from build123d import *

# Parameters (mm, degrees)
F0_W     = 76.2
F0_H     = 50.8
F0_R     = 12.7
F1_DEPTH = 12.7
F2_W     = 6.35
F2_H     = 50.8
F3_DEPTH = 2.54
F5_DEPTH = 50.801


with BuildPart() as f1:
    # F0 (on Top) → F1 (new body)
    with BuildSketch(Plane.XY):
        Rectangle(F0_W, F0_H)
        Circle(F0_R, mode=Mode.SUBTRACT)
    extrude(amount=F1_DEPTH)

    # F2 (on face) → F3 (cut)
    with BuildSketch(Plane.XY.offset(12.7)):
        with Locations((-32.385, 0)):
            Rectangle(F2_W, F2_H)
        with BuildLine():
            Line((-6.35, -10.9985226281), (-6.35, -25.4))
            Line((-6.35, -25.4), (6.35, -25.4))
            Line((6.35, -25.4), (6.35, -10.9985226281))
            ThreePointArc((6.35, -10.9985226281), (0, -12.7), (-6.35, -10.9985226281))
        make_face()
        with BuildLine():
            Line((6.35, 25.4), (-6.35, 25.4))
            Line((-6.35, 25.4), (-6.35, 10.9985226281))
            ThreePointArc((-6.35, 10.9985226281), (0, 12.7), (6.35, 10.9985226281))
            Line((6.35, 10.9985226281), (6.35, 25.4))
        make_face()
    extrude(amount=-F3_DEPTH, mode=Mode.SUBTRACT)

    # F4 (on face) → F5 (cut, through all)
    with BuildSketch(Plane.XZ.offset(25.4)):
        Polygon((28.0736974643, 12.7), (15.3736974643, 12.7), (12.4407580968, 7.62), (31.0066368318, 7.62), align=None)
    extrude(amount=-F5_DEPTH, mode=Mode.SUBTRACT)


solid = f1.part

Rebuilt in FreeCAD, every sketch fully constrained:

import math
import FreeCAD as App
import Part
import Sketcher
from FreeCAD import Vector
Q = App.Units.Quantity


def add_polygon(sketch, points):
    """Adds a closed chain of lines whose ends are joined by coincident constraints."""
    first, n = sketch.GeometryCount, len(points)
    for a, b in zip(points, points[1:] + points[:1]):
        sketch.addGeometry(Part.LineSegment(App.Vector(*a, 0), App.Vector(*b, 0)), False)
    for i in range(n):
        sketch.addConstraint(Sketcher.Constraint("Coincident", first + i, 2, first + (i + 1) % n, 1))

doc = App.newDocument("Part")
params = doc.addObject("Spreadsheet::Sheet", "Params")
for row, (alias, value) in enumerate([
    ("sketch1_diameter", "1 in"),
    ("sketch1_width", "3 in"),
    ("sketch1_height", "2 in"),
    ("pad1_length", "0.5 in"),
    ("sketch2_radius", "0.5 in"),
    ("sketch2_height", "2 in"),
    ("sketch2_width", "0.5 in"),
    ("sketch2_width2", "0.25 in"),
    ("pocket1_length", "0.1 in"),
    ("sketch3_width", "0.5 in"),
], start=1):
    params.set(f"A{row}", alias)
    params.set(f"B{row}", "=" + value)
    params.setAlias(f"B{row}", alias)

body = doc.addObject("PartDesign::Body", "Body")

# Sketch on XY plane
sketch1 = doc.addObject("Sketcher::SketchObject", "Sketch")
body.addObject(sketch1)
sketch1.AttachmentSupport = (doc.XY_Plane, [""])
sketch1.MapMode = "FlatFace"
add_polygon(sketch1, [(-38, 25), (-38, -25), (38, -25), (38, 25)])  # lines 0-3
sketch1.addGeometry(Part.Circle(Vector(0, 0, 0), Vector(0, 0, 1), 13), False)  # 4
sketch1.addConstraint(Sketcher.Constraint("Vertical", 0))
sketch1.addConstraint(Sketcher.Constraint("Horizontal", 1))
sketch1.addConstraint(Sketcher.Constraint("Vertical", 2))
sketch1.addConstraint(Sketcher.Constraint("Horizontal", 3))
sketch1.addConstraint(Sketcher.Constraint("Coincident", 4, 3, -1, 1))
sketch1.addConstraint(Sketcher.Constraint("Symmetric", 0, 2, 2, 2, -1, 1))
sketch1.addConstraint(Sketcher.Constraint("Diameter", 4, Q("1 in")))
sketch1.addConstraint(Sketcher.Constraint("DistanceX", 1, 1, 1, 2, Q("3 in")))
sketch1.addConstraint(Sketcher.Constraint("DistanceY", 0, 2, 0, 1, Q("2 in")))
sketch1.setExpression("Constraints[10]", "Params.sketch1_diameter")
sketch1.setExpression("Constraints[11]", "Params.sketch1_width")
sketch1.setExpression("Constraints[12]", "Params.sketch1_height")
pad1 = doc.addObject("PartDesign::Pad", "Pad")
body.addObject(pad1)
pad1.Profile = sketch1
pad1.setExpression("Length", "Params.pad1_length")

# Sketch on XY plane
sketch2 = doc.addObject("Sketcher::SketchObject", "Sketch001")
body.addObject(sketch2)
sketch2.AttachmentSupport = (doc.XY_Plane, [""])
sketch2.MapMode = "FlatFace"
sketch2.AttachmentOffset = App.Placement(Vector(0, 0, 0.5 * 25.4), App.Rotation())
add_polygon(sketch2, [(-36, 25), (-36, -25), (-29, -25), (-29, 25)])  # lines 0-3
sketch2.addGeometry(Part.LineSegment(Vector(-6, -11, 0), Vector(-6, -25, 0)), False)  # 4
sketch2.addGeometry(Part.LineSegment(Vector(-6, -25, 0), Vector(6, -25, 0)), False)  # 5
sketch2.addGeometry(Part.LineSegment(Vector(6, -25, 0), Vector(6, -11, 0)), False)  # 6
sketch2.addGeometry(Part.ArcOfCircle(Part.Circle(Vector(0, 0, 0), Vector(0, 0, 1), 13), math.radians(-120), math.radians(-60)), False)  # 7
sketch2.addGeometry(Part.LineSegment(Vector(6, 25, 0), Vector(-6, 25, 0)), False)  # 8
sketch2.addGeometry(Part.LineSegment(Vector(-6, 25, 0), Vector(-6, 11, 0)), False)  # 9
sketch2.addGeometry(Part.ArcOfCircle(Part.Circle(Vector(0, 0, 0), Vector(0, 0, 1), 13), math.radians(60), math.radians(120)), False)  # 10
sketch2.addGeometry(Part.LineSegment(Vector(6, 11, 0), Vector(6, 25, 0)), False)  # 11
sketch2.addConstraint(Sketcher.Constraint("Coincident", 4, 2, 5, 1))
sketch2.addConstraint(Sketcher.Constraint("Coincident", 5, 2, 6, 1))
sketch2.addConstraint(Sketcher.Constraint("Coincident", 6, 2, 7, 2))
sketch2.addConstraint(Sketcher.Constraint("Coincident", 7, 1, 4, 1))
sketch2.addConstraint(Sketcher.Constraint("Coincident", 8, 2, 9, 1))
sketch2.addConstraint(Sketcher.Constraint("Coincident", 9, 2, 10, 2))
sketch2.addConstraint(Sketcher.Constraint("Coincident", 10, 1, 11, 1))
sketch2.addConstraint(Sketcher.Constraint("Coincident", 11, 2, 8, 1))
sketch2.addConstraint(Sketcher.Constraint("Vertical", 0))
sketch2.addConstraint(Sketcher.Constraint("Horizontal", 1))
sketch2.addConstraint(Sketcher.Constraint("Vertical", 2))
sketch2.addConstraint(Sketcher.Constraint("Horizontal", 3))
sketch2.addConstraint(Sketcher.Constraint("Vertical", 4))
sketch2.addConstraint(Sketcher.Constraint("Horizontal", 5))
sketch2.addConstraint(Sketcher.Constraint("Vertical", 6))
sketch2.addConstraint(Sketcher.Constraint("Horizontal", 8))
sketch2.addConstraint(Sketcher.Constraint("Vertical", 9))
sketch2.addConstraint(Sketcher.Constraint("Vertical", 11))
sketch2.addConstraint(Sketcher.Constraint("Coincident", 7, 3, -1, 1))
sketch2.addConstraint(Sketcher.Constraint("Coincident", 10, 3, -1, 1))
sketch2.addConstraint(Sketcher.Constraint("Equal", 7, 10))
sketch2.addConstraint(Sketcher.Constraint("Symmetric", 5, 2, 8, 2, -1, 1))
sketch2.addConstraint(Sketcher.Constraint("Horizontal", 1, 2, 4, 2))
sketch2.addConstraint(Sketcher.Constraint("Horizontal", 6, 2, 7, 1))
sketch2.addConstraint(Sketcher.Constraint("Horizontal", 3, 2, 8, 2))
sketch2.addConstraint(Sketcher.Constraint("Horizontal", 9, 2, 10, 1))
sketch2.addConstraint(Sketcher.Constraint("Radius", 7, Q("0.5 in")))
sketch2.addConstraint(Sketcher.Constraint("DistanceY", 0, 2, 0, 1, Q("2 in")))
sketch2.addConstraint(Sketcher.Constraint("DistanceX", 5, 1, 5, 2, Q("0.5 in")))
sketch2.addConstraint(Sketcher.Constraint("DistanceX", 1, 1, 1, 2, Q("0.25 in")))
sketch2.addConstraint(Sketcher.Constraint("DistanceX", 0, 2, -1, 1, Q("1.4 in")))
sketch2.setExpression("Constraints[30]", "Params.sketch2_radius")
sketch2.setExpression("Constraints[31]", "Params.sketch2_height")
sketch2.setExpression("Constraints[32]", "Params.sketch2_width")
sketch2.setExpression("Constraints[33]", "Params.sketch2_width2")
pocket1 = doc.addObject("PartDesign::Pocket", "Pocket")
body.addObject(pocket1)
pocket1.Profile = sketch2
pocket1.setExpression("Length", "Params.pocket1_length")

# Sketch on XZ plane
sketch3 = doc.addObject("Sketcher::SketchObject", "Sketch002")
body.addObject(sketch3)
sketch3.AttachmentSupport = (doc.XZ_Plane, [""])
sketch3.MapMode = "FlatFace"
sketch3.AttachmentOffset = App.Placement(Vector(0, 0, 1 * 25.4), App.Rotation())
add_polygon(sketch3, [(28, 13), (15, 13), (12, 8), (31, 8)])  # lines 0-3
sketch3.addConstraint(Sketcher.Constraint("Horizontal", 0))
sketch3.addConstraint(Sketcher.Constraint("Horizontal", 2))
sketch3.addConstraint(Sketcher.Constraint("Equal", 1, 3))
sketch3.addConstraint(Sketcher.Constraint("DistanceX", 0, 2, 0, 1, Q("0.5 in")))
sketch3.addConstraint(Sketcher.Constraint("Angle", 1, Q("-120 deg")))
sketch3.addConstraint(Sketcher.Constraint("DistanceY", -1, 1, 0, 2, Q("0.5 in")))
sketch3.addConstraint(Sketcher.Constraint("DistanceY", -1, 1, 1, 2, Q("0.3 in")))
sketch3.addConstraint(Sketcher.Constraint("DistanceX", -1, 1, 1, 2, 12.440758))
sketch3.setExpression("Constraints[7]", "Params.sketch3_width")
pocket2 = doc.addObject("PartDesign::Pocket", "Pocket001")
body.addObject(pocket2)
pocket2.Profile = sketch3
pocket2.Type = "ThroughAll"

doc.recompute()
